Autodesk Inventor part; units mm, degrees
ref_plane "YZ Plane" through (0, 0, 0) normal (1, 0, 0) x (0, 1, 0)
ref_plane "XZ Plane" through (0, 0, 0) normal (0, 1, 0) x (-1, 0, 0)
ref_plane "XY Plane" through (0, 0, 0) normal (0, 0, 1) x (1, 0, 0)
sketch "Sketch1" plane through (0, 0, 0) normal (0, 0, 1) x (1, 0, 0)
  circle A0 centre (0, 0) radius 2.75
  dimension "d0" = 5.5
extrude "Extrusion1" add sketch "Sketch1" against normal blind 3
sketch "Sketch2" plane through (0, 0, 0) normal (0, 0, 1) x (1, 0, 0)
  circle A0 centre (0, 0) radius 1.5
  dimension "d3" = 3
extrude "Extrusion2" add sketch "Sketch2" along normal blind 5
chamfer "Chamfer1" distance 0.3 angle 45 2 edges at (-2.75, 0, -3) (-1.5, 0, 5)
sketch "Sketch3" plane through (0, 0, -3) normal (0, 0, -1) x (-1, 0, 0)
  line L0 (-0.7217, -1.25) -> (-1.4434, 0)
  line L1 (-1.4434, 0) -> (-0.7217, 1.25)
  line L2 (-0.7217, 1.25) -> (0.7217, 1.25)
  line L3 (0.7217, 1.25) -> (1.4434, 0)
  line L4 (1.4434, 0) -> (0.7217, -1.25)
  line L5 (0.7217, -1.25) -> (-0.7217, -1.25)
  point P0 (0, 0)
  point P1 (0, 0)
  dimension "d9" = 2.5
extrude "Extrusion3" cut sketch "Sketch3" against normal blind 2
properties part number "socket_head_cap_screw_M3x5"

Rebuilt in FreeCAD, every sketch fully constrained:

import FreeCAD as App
import Part
import Sketcher

V = App.Vector
Q = App.Units.Quantity


def edges_at(feature, points):
    """Names of the edges that pass closest to the given points."""
    edges = feature.Shape.Edges
    near = lambda p: min(range(len(edges)), key=lambda i: edges[i].distToShape(Part.Vertex(*p))[0])
    return sorted({f"Edge{near(p) + 1}" for p in points})

doc = App.newDocument("Part")
body = doc.addObject("PartDesign::Body", "Body")

sketch1 = body.newObject("Sketcher::SketchObject", "Sketch")
sketch1.AttachmentSupport = (doc.getObject("XY_Plane"), [""])
sketch1.MapMode = "FlatFace"
sketch1.addGeometry(Part.Circle(V(0, 0, 0), V(0, 0, 1), 2.8), False)
sketch1.addConstraint(Sketcher.Constraint("Coincident", 0, 3, -1, 1))
sketch1.addConstraint(Sketcher.Constraint("Diameter", 0, Q("5.5 mm")))
pad1 = body.newObject("PartDesign::Pad", "Pad")
pad1.Profile = sketch1
pad1.Length = 3
pad1.Reversed = True

sketch2 = body.newObject("Sketcher::SketchObject", "Sketch001")
sketch2.AttachmentSupport = (doc.getObject("XY_Plane"), [""])
sketch2.MapMode = "FlatFace"
sketch2.addGeometry(Part.Circle(V(0, 0, 0), V(0, 0, 1), 1.5), False)
sketch2.addConstraint(Sketcher.Constraint("Coincident", 0, 3, -1, 1))
sketch2.addConstraint(Sketcher.Constraint("Diameter", 0, Q("3 mm")))
pad2 = body.newObject("PartDesign::Pad", "Pad001")
pad2.Profile = sketch2
pad2.Length = 5
doc.recompute()

chamfer = body.newObject("PartDesign::Chamfer", "Chamfer")
chamfer.Base = (pad2, edges_at(pad2, [(-2.75, 0, -3), (-1.5, 0, 5)]))
chamfer.Size = 0.3

sketch3 = body.newObject("Sketcher::SketchObject", "Sketch002")
sketch3.AttachmentSupport = (doc.getObject("XY_Plane"), [""])
sketch3.MapMode = "FlatFace"
sketch3.AttachmentOffset = App.Placement(V(0, 0, -3), App.Rotation())
sketch3.addGeometry(Part.LineSegment(V(1.4, 0, 0), V(0.7, -1.2, 0)), False)
sketch3.addGeometry(Part.LineSegment(V(0.7, -1.2, 0), V(-0.7, -1.2, 0)), False)
sketch3.addGeometry(Part.LineSegment(V(-0.7, -1.2, 0), V(-1.4, 0, 0)), False)
sketch3.addGeometry(Part.LineSegment(V(-1.4, 0, 0), V(-0.7, 1.2, 0)), False)
sketch3.addGeometry(Part.LineSegment(V(-0.7, 1.2, 0), V(0.7, 1.2, 0)), False)
sketch3.addGeometry(Part.LineSegment(V(0.7, 1.2, 0), V(1.4, 0, 0)), False)
sketch3.addConstraint(Sketcher.Constraint("Coincident", 0, 2, 1, 1))
sketch3.addConstraint(Sketcher.Constraint("Coincident", 1, 2, 2, 1))
sketch3.addConstraint(Sketcher.Constraint("Coincident", 2, 2, 3, 1))
sketch3.addConstraint(Sketcher.Constraint("Coincident", 3, 2, 4, 1))
sketch3.addConstraint(Sketcher.Constraint("Coincident", 4, 2, 5, 1))
sketch3.addConstraint(Sketcher.Constraint("Coincident", 5, 2, 0, 1))
sketch3.addConstraint(Sketcher.Constraint("Horizontal", 1))
sketch3.addConstraint(Sketcher.Constraint("Horizontal", 4))
sketch3.addConstraint(Sketcher.Constraint("Symmetric", 0, 2, 3, 2, -1, 1))
sketch3.addConstraint(Sketcher.Constraint("Symmetric", 2, 2, 5, 2, -1, 1))
sketch3.addConstraint(Sketcher.Constraint("PointOnObject", 2, 2, -1))
sketch3.addConstraint(Sketcher.Constraint("Parallel", 2, 5))
sketch3.addConstraint(Sketcher.Constraint("Vertical", 1, 2, 3, 2))
sketch3.addConstraint(Sketcher.Constraint("DistanceY", 1, 2, 3, 2, Q("2.5 mm")))
sketch3.addConstraint(Sketcher.Constraint("Angle", 0, Q("-120.0004 deg")))
sketch3.addConstraint(Sketcher.Constraint("DistanceX", 1, 2, 1, 1, Q("1.4434 mm")))
pocket1 = body.newObject("PartDesign::Pocket", "Pocket")
pocket1.Profile = sketch3
pocket1.Length = 2
pocket1.Reversed = True

doc.recompute()
